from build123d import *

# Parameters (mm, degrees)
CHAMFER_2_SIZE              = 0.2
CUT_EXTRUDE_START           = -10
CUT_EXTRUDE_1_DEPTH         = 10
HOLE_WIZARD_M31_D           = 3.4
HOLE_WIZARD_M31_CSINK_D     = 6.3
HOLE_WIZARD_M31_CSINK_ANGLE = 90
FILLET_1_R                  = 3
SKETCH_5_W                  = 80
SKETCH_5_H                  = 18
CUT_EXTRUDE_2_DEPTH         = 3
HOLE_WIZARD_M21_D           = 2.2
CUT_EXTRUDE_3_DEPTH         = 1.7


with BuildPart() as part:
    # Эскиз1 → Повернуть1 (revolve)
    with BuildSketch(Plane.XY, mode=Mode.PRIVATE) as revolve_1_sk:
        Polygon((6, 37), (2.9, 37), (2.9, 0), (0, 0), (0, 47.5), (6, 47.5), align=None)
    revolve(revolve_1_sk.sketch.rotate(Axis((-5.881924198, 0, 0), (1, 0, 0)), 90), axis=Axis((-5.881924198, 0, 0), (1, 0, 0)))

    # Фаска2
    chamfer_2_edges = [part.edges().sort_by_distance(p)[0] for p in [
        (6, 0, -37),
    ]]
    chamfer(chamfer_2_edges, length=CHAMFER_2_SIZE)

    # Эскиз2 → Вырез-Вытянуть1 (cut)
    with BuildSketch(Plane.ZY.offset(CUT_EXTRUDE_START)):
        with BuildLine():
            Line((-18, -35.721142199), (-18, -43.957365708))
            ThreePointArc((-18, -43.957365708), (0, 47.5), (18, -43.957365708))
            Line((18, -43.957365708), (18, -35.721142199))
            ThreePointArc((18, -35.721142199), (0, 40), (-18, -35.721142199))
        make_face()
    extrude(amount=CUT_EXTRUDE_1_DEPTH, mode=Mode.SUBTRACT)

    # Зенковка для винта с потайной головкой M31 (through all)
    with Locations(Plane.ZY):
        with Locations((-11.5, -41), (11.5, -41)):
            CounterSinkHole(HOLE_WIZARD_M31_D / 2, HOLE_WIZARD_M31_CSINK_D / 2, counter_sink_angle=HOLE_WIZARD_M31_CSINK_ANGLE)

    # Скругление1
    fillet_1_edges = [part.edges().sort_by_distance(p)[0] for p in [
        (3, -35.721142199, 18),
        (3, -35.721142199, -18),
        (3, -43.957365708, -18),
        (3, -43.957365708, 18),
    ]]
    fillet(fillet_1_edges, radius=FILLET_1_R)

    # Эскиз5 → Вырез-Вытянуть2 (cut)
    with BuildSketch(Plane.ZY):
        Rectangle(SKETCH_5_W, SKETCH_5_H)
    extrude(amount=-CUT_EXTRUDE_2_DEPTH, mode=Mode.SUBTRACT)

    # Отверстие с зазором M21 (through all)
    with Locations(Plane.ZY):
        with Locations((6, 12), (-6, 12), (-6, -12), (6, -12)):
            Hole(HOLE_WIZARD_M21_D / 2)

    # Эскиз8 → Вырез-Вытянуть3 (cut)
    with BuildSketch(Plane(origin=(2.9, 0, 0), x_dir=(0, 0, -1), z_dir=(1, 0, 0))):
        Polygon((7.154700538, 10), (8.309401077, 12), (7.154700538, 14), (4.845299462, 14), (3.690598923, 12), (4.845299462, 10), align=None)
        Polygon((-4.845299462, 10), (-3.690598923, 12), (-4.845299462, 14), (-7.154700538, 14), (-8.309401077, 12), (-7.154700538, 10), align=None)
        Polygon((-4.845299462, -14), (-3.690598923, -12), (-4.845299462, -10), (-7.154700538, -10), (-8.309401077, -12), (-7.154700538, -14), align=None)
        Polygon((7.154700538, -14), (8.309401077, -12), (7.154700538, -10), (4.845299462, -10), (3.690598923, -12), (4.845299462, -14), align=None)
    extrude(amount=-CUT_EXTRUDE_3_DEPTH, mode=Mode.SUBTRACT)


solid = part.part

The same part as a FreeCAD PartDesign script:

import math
import FreeCAD as App
import Part
import Sketcher
from FreeCAD import Vector
Q = App.Units.Quantity


def edges_at(feature, points):
    """Names of the edges that pass closest to the given points."""
    edges = feature.Shape.Edges
    near = lambda p: min(range(len(edges)), key=lambda i: edges[i].distToShape(Part.Vertex(*p))[0])
    return sorted({f"Edge{near(p) + 1}" for p in points})


def add_polygon(sketch, points):
    """Adds a closed chain of lines whose ends are joined by coincident constraints."""
    first, n = sketch.GeometryCount, len(points)
    for a, b in zip(points, points[1:] + points[:1]):
        sketch.addGeometry(Part.LineSegment(App.Vector(*a, 0), App.Vector(*b, 0)), False)
    for i in range(n):
        sketch.addConstraint(Sketcher.Constraint("Coincident", first + i, 2, first + (i + 1) % n, 1))

doc = App.newDocument("Part")
body = doc.addObject("PartDesign::Body", "Body")

# Sketch on XY plane
sketch1 = body.newObject("Sketcher::SketchObject", "Sketch")
sketch1.AttachmentSupport = (doc.getObject("XY_Plane"), [""])
sketch1.MapMode = "FlatFace"
add_polygon(sketch1, [(2.9, 37), (6, 37), (6, 47.5), (0, 47.5), (0, 0), (2.9, 0)])  # lines 0-5
sketch1.addConstraint(Sketcher.Constraint("Horizontal", 0))
sketch1.addConstraint(Sketcher.Constraint("Vertical", 1))
sketch1.addConstraint(Sketcher.Constraint("Horizontal", 2))
sketch1.addConstraint(Sketcher.Constraint("Vertical", 3))
sketch1.addConstraint(Sketcher.Constraint("Horizontal", 4))
sketch1.addConstraint(Sketcher.Constraint("Vertical", 5))
sketch1.addConstraint(Sketcher.Constraint("Coincident", 3, 2, -1, 1))
sketch1.addConstraint(Sketcher.Constraint("DistanceX", 2, 2, 2, 1, Q("6 mm")))
sketch1.addConstraint(Sketcher.Constraint("DistanceY", 5, 1, 5, 2, Q("37 mm")))
sketch1.addConstraint(Sketcher.Constraint("DistanceX", 0, 1, 0, 2, Q("3.1 mm")))
sketch1.addConstraint(Sketcher.Constraint("DistanceY", 1, 1, 1, 2, Q("10.5 mm")))
revolution = body.newObject("PartDesign::Revolution", "Revolution")
revolution.Profile = sketch1
revolution.ReferenceAxis = (sketch1, ["H_Axis"])
revolution.Angle = 360
doc.recompute()

chamfer = body.newObject("PartDesign::Chamfer", "Chamfer")
chamfer.Base = (revolution, edges_at(revolution, [(6, 0, -37)]))
chamfer.Size = 0.2

# Sketch on YZ plane
sketch2 = body.newObject("Sketcher::SketchObject", "Sketch001")
sketch2.AttachmentSupport = (doc.getObject("YZ_Plane"), [""])
sketch2.MapMode = "FlatFace"
sketch2.AttachmentOffset = App.Placement(Vector(0, 0, 10), App.Rotation())
sketch2.addGeometry(Part.LineSegment(Vector(-44, -18, 0), Vector(-36, -18, 0)), False)
sketch2.addGeometry(Part.ArcOfCircle(Part.Circle(Vector(0, 0, 0), Vector(0, 0, 1), 40), math.radians(-153), math.radians(153)), False)
sketch2.addGeometry(Part.LineSegment(Vector(-36, 18, 0), Vector(-44, 18, 0)), False)
sketch2.addGeometry(Part.ArcOfCircle(Part.Circle(Vector(0, 0, 0), Vector(0, 0, 1), 48), math.radians(-158), math.radians(158)), False)
sketch2.addConstraint(Sketcher.Constraint("Coincident", 0, 2, 1, 1))
sketch2.addConstraint(Sketcher.Constraint("Coincident", 1, 2, 2, 1))
sketch2.addConstraint(Sketcher.Constraint("Coincident", 2, 2, 3, 2))
sketch2.addConstraint(Sketcher.Constraint("Coincident", 3, 1, 0, 1))
sketch2.addConstraint(Sketcher.Constraint("Horizontal", 0))
sketch2.addConstraint(Sketcher.Constraint("Horizontal", 2))
sketch2.addConstraint(Sketcher.Constraint("Coincident", 1, 3, -1, 1))
sketch2.addConstraint(Sketcher.Constraint("Coincident", 3, 3, -1, 1))
sketch2.addConstraint(Sketcher.Constraint("Vertical", 0, 2, 1, 2))
sketch2.addConstraint(Sketcher.Constraint("Radius", 1, Q("40 mm")))
sketch2.addConstraint(Sketcher.Constraint("Radius", 3, Q("47.5 mm")))
sketch2.addConstraint(Sketcher.Constraint("DistanceY", 0, 2, -1, 1, Q("18 mm")))
pocket1 = body.newObject("PartDesign::Pocket", "Pocket")
pocket1.Profile = sketch2
pocket1.Length = 10

# Sketch on YZ plane
sketch3 = body.newObject("Sketcher::SketchObject", "Sketch002")
sketch3.AttachmentSupport = (doc.getObject("YZ_Plane"), [""])
sketch3.MapMode = "FlatFace"
sketch3.addGeometry(Part.Circle(Vector(-41, -11.5, 0), Vector(0, 0, 1), 1.7), False)
sketch3.addGeometry(Part.Circle(Vector(-41, 11.5, 0), Vector(0, 0, 1), 1.7), False)
sketch3.addConstraint(Sketcher.Constraint("Equal", 0, 1))
sketch3.addConstraint(Sketcher.Constraint("Symmetric", 0, 3, 1, 3, -1))
sketch3.addConstraint(Sketcher.Constraint("Diameter", 0, Q("3.4 mm")))
sketch3.addConstraint(Sketcher.Constraint("DistanceX", 0, 3, -1, 1, Q("41 mm")))
sketch3.addConstraint(Sketcher.Constraint("DistanceY", 0, 3, 1, 3, Q("23 mm")))
doc.recompute()
hole = body.newObject("PartDesign::Hole", "Hole")
hole.Profile = sketch3
hole.ThreadType = "None"
hole.Diameter = 3.4
hole.DepthType = "ThroughAll"
hole.HoleCutType = "Countersink"
hole.HoleCutDiameter = 6.3
hole.HoleCutCountersinkAngle = 90
hole.Reversed = True
doc.recompute()

fillet = body.newObject("PartDesign::Fillet", "Fillet")
fillet.Base = (hole, edges_at(hole, [
    (3, -35.721, 18),
    (3, -35.721, -18),
    (3, -43.957, -18),
    (3, -43.957, 18),
]))
fillet.Radius = 3

# Sketch on YZ plane
sketch4 = body.newObject("Sketcher::SketchObject", "Sketch003")
sketch4.AttachmentSupport = (doc.getObject("YZ_Plane"), [""])
sketch4.MapMode = "FlatFace"
add_polygon(sketch4, [(9, -40), (-9, -40), (-9, 40), (9, 40)])  # lines 0-3
sketch4.addConstraint(Sketcher.Constraint("Horizontal", 0))
sketch4.addConstraint(Sketcher.Constraint("Vertical", 1))
sketch4.addConstraint(Sketcher.Constraint("Horizontal", 2))
sketch4.addConstraint(Sketcher.Constraint("Vertical", 3))
sketch4.addConstraint(Sketcher.Constraint("Symmetric", 0, 2, 2, 2, -1, 1))
sketch4.addConstraint(Sketcher.Constraint("DistanceX", 0, 2, 0, 1, Q("18 mm")))
sketch4.addConstraint(Sketcher.Constraint("DistanceY", 1, 1, 1, 2, Q("80 mm")))
pocket2 = body.newObject("PartDesign::Pocket", "Pocket001")
pocket2.Profile = sketch4
pocket2.Length = 3
pocket2.Reversed = True

# Sketch on YZ plane
sketch5 = body.newObject("Sketcher::SketchObject", "Sketch004")
sketch5.AttachmentSupport = (doc.getObject("YZ_Plane"), [""])
sketch5.MapMode = "FlatFace"
sketch5.addGeometry(Part.Circle(Vector(12, 6, 0), Vector(0, 0, 1), 1.1), False)
sketch5.addGeometry(Part.Circle(Vector(12, -6, 0), Vector(0, 0, 1), 1.1), False)
sketch5.addGeometry(Part.Circle(Vector(-12, -6, 0), Vector(0, 0, 1), 1.1), False)
sketch5.addGeometry(Part.Circle(Vector(-12, 6, 0), Vector(0, 0, 1), 1.1), False)
sketch5.addConstraint(Sketcher.Constraint("Equal", 0, 1))
sketch5.addConstraint(Sketcher.Constraint("Equal", 1, 2))
sketch5.addConstraint(Sketcher.Constraint("Equal", 2, 3))
sketch5.addConstraint(Sketcher.Constraint("Symmetric", 0, 3, 2, 3, -1, 1))
sketch5.addConstraint(Sketcher.Constraint("Symmetric", 1, 3, 3, 3, -1, 1))
sketch5.addConstraint(Sketcher.Constraint("Symmetric", 1, 3, 2, 3, -2))
sketch5.addConstraint(Sketcher.Constraint("Diameter", 0, Q("2.2 mm")))
sketch5.addConstraint(Sketcher.Constraint("DistanceX", -1, 1, 0, 3, Q("12 mm")))
sketch5.addConstraint(Sketcher.Constraint("DistanceY", -1, 1, 0, 3, Q("6 mm")))
doc.recompute()
hole2 = body.newObject("PartDesign::Hole", "Hole001")
hole2.Profile = sketch5
hole2.ThreadType = "None"
hole2.Diameter = 2.2
hole2.DepthType = "ThroughAll"
hole2.Reversed = True

# Sketch on YZ plane
sketch6 = body.newObject("Sketcher::SketchObject", "Sketch005")
sketch6.AttachmentSupport = (doc.getObject("YZ_Plane"), [""])
sketch6.MapMode = "FlatFace"
sketch6.AttachmentOffset = App.Placement(Vector(0, 0, 2.9), App.Rotation())
add_polygon(sketch6, [(10, -7.2), (12, -8.3), (14, -7.2), (14, -4.8), (12, -3.7), (10, -4.8)])  # lines 0-5
add_polygon(sketch6, [(10, 4.8), (12, 3.7), (14, 4.8), (14, 7.2), (12, 8.3), (10, 7.2)])  # lines 6-11
add_polygon(sketch6, [(-14, 4.8), (-12, 3.7), (-10, 4.8), (-10, 7.2), (-12, 8.3), (-14, 7.2)])  # lines 12-17
add_polygon(sketch6, [(-14, -7.2), (-12, -8.3), (-10, -7.2), (-10, -4.8), (-12, -3.7), (-14, -4.8)])  # lines 18-23
sketch6.addConstraint(Sketcher.Constraint("Vertical", 2))
sketch6.addConstraint(Sketcher.Constraint("Vertical", 5))
sketch6.addConstraint(Sketcher.Constraint("Vertical", 8))
sketch6.addConstraint(Sketcher.Constraint("Vertical", 11))
sketch6.addConstraint(Sketcher.Constraint("Vertical", 14))
sketch6.addConstraint(Sketcher.Constraint("Vertical", 17))
sketch6.addConstraint(Sketcher.Constraint("Vertical", 20))
sketch6.addConstraint(Sketcher.Constraint("Vertical", 23))
sketch6.addConstraint(Sketcher.Constraint("Symmetric", 3, 2, 12, 2, -1, 1))
sketch6.addConstraint(Sketcher.Constraint("Symmetric", 4, 2, 13, 2, -1, 1))
sketch6.addConstraint(Sketcher.Constraint("Symmetric", 0, 2, 15, 2, -1, 1))
sketch6.addConstraint(Sketcher.Constraint("Symmetric", 1, 2, 16, 2, -1, 1))
sketch6.addConstraint(Sketcher.Constraint("Symmetric", 9, 2, 18, 2, -1, 1))
sketch6.addConstraint(Sketcher.Constraint("Symmetric", 10, 2, 19, 2, -1, 1))
sketch6.addConstraint(Sketcher.Constraint("Symmetric", 6, 2, 21, 2, -1, 1))
sketch6.addConstraint(Sketcher.Constraint("Symmetric", 7, 2, 22, 2, -1, 1))
sketch6.addConstraint(Sketcher.Constraint("Symmetric", 6, 2, 12, 2, -2))
sketch6.addConstraint(Sketcher.Constraint("Symmetric", 11, 2, 13, 2, -2))
sketch6.addConstraint(Sketcher.Constraint("Symmetric", 9, 2, 15, 2, -2))
sketch6.addConstraint(Sketcher.Constraint("Symmetric", 8, 2, 16, 2, -2))
sketch6.addConstraint(Sketcher.Constraint("Parallel", 0, 3))
sketch6.addConstraint(Sketcher.Constraint("Parallel", 1, 4))
sketch6.addConstraint(Sketcher.Constraint("Parallel", 3, 6))
sketch6.addConstraint(Sketcher.Constraint("Parallel", 4, 7))
sketch6.addConstraint(Sketcher.Constraint("Parallel", 7, 10))
sketch6.addConstraint(Sketcher.Constraint("Parallel", 9, 12))
sketch6.addConstraint(Sketcher.Constraint("Parallel", 12, 15))
sketch6.addConstraint(Sketcher.Constraint("Parallel", 15, 18))
sketch6.addConstraint(Sketcher.Constraint("Parallel", 18, 21))
sketch6.addConstraint(Sketcher.Constraint("Horizontal", 2, 2, 4, 2))
sketch6.addConstraint(Sketcher.Constraint("Horizontal", 1, 2, 5, 2))
sketch6.addConstraint(Sketcher.Constraint("Angle", 0, Q("-30 deg")))
sketch6.addConstraint(Sketcher.Constraint("DistanceX", -1, 1, 0, 2, Q("12 mm")))
sketch6.addConstraint(Sketcher.Constraint("DistanceX", -1, 1, 1, 2, Q("14 mm")))
sketch6.addConstraint(Sketcher.Constraint("DistanceY", 1, 2, 7, 2, Q("12 mm")))
sketch6.addConstraint(Sketcher.Constraint("DistanceY", 2, 1, 2, 2, Q("2.309401 mm")))
pocket3 = body.newObject("PartDesign::Pocket", "Pocket002")
pocket3.Profile = sketch6
pocket3.Length = 1.7

doc.recompute()
